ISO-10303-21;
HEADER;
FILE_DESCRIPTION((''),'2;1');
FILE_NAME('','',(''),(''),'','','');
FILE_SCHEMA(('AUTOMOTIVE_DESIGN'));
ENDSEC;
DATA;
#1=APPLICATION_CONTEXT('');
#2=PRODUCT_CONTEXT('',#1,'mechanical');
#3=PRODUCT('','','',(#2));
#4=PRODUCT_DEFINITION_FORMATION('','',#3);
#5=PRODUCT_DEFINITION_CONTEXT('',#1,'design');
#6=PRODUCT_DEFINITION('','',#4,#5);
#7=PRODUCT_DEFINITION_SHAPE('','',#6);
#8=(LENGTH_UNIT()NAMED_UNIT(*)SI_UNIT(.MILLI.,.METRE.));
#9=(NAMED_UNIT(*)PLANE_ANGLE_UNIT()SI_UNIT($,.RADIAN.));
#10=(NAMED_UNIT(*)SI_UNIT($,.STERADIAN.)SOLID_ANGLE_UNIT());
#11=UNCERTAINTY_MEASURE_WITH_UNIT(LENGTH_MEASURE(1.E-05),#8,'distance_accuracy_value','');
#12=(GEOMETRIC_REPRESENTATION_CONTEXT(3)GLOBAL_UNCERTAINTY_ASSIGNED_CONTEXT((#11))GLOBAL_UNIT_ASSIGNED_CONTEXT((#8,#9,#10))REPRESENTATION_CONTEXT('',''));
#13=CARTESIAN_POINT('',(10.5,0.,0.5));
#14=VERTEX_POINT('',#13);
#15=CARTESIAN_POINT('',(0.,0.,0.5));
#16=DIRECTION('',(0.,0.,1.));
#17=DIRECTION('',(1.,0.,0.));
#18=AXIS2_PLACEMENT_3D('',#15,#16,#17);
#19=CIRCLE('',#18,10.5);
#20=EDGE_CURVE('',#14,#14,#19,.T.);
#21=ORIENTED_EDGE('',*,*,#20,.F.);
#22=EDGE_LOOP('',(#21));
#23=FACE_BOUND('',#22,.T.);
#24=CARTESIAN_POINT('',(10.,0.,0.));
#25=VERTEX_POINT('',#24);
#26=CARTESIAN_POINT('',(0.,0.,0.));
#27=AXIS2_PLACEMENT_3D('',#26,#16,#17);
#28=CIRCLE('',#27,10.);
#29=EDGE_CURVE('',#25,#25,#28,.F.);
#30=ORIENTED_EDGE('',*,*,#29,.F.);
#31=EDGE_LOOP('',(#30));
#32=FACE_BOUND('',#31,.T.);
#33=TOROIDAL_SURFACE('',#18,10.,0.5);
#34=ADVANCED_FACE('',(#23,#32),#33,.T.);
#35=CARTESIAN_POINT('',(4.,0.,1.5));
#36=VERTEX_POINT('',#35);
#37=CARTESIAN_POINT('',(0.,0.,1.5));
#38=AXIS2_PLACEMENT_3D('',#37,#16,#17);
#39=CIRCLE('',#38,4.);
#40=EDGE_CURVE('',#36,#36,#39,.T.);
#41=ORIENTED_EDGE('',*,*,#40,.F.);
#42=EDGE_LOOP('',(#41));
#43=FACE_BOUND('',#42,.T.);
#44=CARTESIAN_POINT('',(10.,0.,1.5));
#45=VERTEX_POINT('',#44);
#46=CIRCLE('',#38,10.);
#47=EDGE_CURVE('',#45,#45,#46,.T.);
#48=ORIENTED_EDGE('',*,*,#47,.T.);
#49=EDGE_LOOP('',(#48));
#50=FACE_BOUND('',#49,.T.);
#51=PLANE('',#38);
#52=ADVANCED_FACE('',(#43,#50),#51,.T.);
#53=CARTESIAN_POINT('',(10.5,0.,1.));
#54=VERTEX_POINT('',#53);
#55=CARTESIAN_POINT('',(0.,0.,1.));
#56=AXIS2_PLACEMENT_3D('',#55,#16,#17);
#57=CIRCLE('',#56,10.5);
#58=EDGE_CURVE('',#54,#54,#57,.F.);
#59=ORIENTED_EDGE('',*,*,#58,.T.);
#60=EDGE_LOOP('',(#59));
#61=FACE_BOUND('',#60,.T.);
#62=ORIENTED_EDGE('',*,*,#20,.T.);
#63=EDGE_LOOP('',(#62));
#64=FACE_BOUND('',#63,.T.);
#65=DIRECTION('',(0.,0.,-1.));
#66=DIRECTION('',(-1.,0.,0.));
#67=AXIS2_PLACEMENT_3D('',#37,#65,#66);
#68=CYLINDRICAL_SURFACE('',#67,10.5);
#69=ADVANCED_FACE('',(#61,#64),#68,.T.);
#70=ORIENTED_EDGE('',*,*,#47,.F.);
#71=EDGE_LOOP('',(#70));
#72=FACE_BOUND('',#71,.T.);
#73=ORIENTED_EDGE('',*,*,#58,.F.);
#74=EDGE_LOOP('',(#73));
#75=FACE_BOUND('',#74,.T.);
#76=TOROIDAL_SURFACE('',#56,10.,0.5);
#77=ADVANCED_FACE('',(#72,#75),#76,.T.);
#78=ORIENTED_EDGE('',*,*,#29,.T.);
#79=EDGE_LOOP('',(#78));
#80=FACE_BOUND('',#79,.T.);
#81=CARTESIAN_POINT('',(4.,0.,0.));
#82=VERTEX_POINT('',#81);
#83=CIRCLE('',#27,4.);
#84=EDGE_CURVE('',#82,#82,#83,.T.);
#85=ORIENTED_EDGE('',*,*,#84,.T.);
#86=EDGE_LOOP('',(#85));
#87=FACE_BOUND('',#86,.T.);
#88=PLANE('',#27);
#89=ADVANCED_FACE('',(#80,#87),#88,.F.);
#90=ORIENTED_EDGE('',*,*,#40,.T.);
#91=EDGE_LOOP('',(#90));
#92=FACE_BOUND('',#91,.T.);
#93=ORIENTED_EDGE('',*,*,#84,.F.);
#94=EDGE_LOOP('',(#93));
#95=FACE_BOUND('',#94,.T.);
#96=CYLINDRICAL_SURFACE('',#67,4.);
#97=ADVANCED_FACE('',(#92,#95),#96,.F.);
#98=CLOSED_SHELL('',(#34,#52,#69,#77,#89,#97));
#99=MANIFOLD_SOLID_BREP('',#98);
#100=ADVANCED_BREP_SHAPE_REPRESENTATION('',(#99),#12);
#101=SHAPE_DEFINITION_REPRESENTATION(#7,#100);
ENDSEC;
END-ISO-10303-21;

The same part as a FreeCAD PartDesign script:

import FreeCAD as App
import Part
import Sketcher
Q = App.Units.Quantity


def edges_at(feature, points):
    """Names of the edges that pass closest to the given points."""
    edges = feature.Shape.Edges
    near = lambda p: min(range(len(edges)), key=lambda i: edges[i].distToShape(Part.Vertex(*p))[0])
    return sorted({f"Edge{near(p) + 1}" for p in points})

doc = App.newDocument("Part")
params = doc.addObject("Spreadsheet::Sheet", "Params")
for row, (alias, value) in enumerate([
    ("sketch1_diameter", "21 mm"),
    ("sketch1_diameter2", "8 mm"),
    ("pad1_length", "1.5 mm"),
    ("fillet_radius", "0.5 mm"),
], start=1):
    params.set(f"A{row}", alias)
    params.set(f"B{row}", "=" + value)
    params.setAlias(f"B{row}", alias)

body = doc.addObject("PartDesign::Body", "Body")

# Sketch on XY plane
sketch1 = body.newObject("Sketcher::SketchObject", "Sketch")
sketch1.AttachmentSupport = (doc.getObject("XY_Plane"), [""])
sketch1.MapMode = "FlatFace"
sketch1.addGeometry([
    Part.Circle(App.Vector(0, 0, 0), App.Vector(0, 0, 1), 10.5),
    Part.Circle(App.Vector(0, 0, 0), App.Vector(0, 0, 1), 4),
], False)
sketch1.addConstraint([
    Sketcher.Constraint("Coincident", 0, 3, -1, 1),
    Sketcher.Constraint("Coincident", 1, 3, -1, 1),
    Sketcher.Constraint("Diameter", 0, Q("21 mm")),
    Sketcher.Constraint("Diameter", 1, Q("8 mm")),
])
sketch1.setExpression("Constraints[2]", "Params.sketch1_diameter")
sketch1.setExpression("Constraints[3]", "Params.sketch1_diameter2")
pad1 = body.newObject("PartDesign::Pad", "Pad")
pad1.Profile = sketch1
pad1.setExpression("Length", "Params.pad1_length")
doc.recompute()

fillet = body.newObject("PartDesign::Fillet", "Fillet")
fillet.Base = (pad1, edges_at(pad1, [(-10.5, 0, 0), (-10.5, 0, 1.5)]))
fillet.setExpression("Radius", "Params.fillet_radius")

doc.recompute()
